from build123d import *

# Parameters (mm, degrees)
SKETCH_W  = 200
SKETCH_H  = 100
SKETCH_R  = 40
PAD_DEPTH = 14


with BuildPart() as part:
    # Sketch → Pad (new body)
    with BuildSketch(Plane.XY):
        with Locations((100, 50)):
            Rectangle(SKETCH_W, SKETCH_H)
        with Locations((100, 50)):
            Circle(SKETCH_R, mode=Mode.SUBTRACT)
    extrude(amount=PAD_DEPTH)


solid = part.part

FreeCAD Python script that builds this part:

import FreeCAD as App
import Part
import Sketcher

V = App.Vector
Q = App.Units.Quantity


def add_polygon(sketch, points):
    """Adds a closed chain of lines whose ends are joined by coincident constraints."""
    first, n = sketch.GeometryCount, len(points)
    for a, b in zip(points, points[1:] + points[:1]):
        sketch.addGeometry(Part.LineSegment(App.Vector(*a, 0), App.Vector(*b, 0)), False)
    for i in range(n):
        sketch.addConstraint(Sketcher.Constraint("Coincident", first + i, 2, first + (i + 1) % n, 1))

doc = App.newDocument("Part")
body = doc.addObject("PartDesign::Body", "Body")

# Sketch on XY plane
sketch1 = doc.addObject("Sketcher::SketchObject", "Sketch")
body.addObject(sketch1)
sketch1.AttachmentSupport = (doc.XY_Plane, [""])
sketch1.MapMode = "FlatFace"
add_polygon(sketch1, [(0, 100), (0, 0), (200, 0), (200, 100)])  # lines 0-3
sketch1.addGeometry(Part.Circle(V(100, 50, 0), V(0, 0, 1), 40), False)  # 4
sketch1.addConstraint([
    Sketcher.Constraint("Vertical", 0),
    Sketcher.Constraint("Horizontal", 1),
    Sketcher.Constraint("Vertical", 2),
    Sketcher.Constraint("Horizontal", 3),
    Sketcher.Constraint("Coincident", 0, 2, -1, 1),
    Sketcher.Constraint("Diameter", 4, Q("80 mm")),
    Sketcher.Constraint("DistanceX", 1, 1, 1, 2, Q("200 mm")),
    Sketcher.Constraint("DistanceY", 0, 2, 0, 1, Q("100 mm")),
    Sketcher.Constraint("DistanceX", -1, 1, 4, 3, Q("100 mm")),
    Sketcher.Constraint("DistanceY", -1, 1, 4, 3, Q("50 mm")),
])
pad1 = doc.addObject("PartDesign::Pad", "Pad")
body.addObject(pad1)
pad1.Profile = sketch1
pad1.Length = 14

doc.recompute()
